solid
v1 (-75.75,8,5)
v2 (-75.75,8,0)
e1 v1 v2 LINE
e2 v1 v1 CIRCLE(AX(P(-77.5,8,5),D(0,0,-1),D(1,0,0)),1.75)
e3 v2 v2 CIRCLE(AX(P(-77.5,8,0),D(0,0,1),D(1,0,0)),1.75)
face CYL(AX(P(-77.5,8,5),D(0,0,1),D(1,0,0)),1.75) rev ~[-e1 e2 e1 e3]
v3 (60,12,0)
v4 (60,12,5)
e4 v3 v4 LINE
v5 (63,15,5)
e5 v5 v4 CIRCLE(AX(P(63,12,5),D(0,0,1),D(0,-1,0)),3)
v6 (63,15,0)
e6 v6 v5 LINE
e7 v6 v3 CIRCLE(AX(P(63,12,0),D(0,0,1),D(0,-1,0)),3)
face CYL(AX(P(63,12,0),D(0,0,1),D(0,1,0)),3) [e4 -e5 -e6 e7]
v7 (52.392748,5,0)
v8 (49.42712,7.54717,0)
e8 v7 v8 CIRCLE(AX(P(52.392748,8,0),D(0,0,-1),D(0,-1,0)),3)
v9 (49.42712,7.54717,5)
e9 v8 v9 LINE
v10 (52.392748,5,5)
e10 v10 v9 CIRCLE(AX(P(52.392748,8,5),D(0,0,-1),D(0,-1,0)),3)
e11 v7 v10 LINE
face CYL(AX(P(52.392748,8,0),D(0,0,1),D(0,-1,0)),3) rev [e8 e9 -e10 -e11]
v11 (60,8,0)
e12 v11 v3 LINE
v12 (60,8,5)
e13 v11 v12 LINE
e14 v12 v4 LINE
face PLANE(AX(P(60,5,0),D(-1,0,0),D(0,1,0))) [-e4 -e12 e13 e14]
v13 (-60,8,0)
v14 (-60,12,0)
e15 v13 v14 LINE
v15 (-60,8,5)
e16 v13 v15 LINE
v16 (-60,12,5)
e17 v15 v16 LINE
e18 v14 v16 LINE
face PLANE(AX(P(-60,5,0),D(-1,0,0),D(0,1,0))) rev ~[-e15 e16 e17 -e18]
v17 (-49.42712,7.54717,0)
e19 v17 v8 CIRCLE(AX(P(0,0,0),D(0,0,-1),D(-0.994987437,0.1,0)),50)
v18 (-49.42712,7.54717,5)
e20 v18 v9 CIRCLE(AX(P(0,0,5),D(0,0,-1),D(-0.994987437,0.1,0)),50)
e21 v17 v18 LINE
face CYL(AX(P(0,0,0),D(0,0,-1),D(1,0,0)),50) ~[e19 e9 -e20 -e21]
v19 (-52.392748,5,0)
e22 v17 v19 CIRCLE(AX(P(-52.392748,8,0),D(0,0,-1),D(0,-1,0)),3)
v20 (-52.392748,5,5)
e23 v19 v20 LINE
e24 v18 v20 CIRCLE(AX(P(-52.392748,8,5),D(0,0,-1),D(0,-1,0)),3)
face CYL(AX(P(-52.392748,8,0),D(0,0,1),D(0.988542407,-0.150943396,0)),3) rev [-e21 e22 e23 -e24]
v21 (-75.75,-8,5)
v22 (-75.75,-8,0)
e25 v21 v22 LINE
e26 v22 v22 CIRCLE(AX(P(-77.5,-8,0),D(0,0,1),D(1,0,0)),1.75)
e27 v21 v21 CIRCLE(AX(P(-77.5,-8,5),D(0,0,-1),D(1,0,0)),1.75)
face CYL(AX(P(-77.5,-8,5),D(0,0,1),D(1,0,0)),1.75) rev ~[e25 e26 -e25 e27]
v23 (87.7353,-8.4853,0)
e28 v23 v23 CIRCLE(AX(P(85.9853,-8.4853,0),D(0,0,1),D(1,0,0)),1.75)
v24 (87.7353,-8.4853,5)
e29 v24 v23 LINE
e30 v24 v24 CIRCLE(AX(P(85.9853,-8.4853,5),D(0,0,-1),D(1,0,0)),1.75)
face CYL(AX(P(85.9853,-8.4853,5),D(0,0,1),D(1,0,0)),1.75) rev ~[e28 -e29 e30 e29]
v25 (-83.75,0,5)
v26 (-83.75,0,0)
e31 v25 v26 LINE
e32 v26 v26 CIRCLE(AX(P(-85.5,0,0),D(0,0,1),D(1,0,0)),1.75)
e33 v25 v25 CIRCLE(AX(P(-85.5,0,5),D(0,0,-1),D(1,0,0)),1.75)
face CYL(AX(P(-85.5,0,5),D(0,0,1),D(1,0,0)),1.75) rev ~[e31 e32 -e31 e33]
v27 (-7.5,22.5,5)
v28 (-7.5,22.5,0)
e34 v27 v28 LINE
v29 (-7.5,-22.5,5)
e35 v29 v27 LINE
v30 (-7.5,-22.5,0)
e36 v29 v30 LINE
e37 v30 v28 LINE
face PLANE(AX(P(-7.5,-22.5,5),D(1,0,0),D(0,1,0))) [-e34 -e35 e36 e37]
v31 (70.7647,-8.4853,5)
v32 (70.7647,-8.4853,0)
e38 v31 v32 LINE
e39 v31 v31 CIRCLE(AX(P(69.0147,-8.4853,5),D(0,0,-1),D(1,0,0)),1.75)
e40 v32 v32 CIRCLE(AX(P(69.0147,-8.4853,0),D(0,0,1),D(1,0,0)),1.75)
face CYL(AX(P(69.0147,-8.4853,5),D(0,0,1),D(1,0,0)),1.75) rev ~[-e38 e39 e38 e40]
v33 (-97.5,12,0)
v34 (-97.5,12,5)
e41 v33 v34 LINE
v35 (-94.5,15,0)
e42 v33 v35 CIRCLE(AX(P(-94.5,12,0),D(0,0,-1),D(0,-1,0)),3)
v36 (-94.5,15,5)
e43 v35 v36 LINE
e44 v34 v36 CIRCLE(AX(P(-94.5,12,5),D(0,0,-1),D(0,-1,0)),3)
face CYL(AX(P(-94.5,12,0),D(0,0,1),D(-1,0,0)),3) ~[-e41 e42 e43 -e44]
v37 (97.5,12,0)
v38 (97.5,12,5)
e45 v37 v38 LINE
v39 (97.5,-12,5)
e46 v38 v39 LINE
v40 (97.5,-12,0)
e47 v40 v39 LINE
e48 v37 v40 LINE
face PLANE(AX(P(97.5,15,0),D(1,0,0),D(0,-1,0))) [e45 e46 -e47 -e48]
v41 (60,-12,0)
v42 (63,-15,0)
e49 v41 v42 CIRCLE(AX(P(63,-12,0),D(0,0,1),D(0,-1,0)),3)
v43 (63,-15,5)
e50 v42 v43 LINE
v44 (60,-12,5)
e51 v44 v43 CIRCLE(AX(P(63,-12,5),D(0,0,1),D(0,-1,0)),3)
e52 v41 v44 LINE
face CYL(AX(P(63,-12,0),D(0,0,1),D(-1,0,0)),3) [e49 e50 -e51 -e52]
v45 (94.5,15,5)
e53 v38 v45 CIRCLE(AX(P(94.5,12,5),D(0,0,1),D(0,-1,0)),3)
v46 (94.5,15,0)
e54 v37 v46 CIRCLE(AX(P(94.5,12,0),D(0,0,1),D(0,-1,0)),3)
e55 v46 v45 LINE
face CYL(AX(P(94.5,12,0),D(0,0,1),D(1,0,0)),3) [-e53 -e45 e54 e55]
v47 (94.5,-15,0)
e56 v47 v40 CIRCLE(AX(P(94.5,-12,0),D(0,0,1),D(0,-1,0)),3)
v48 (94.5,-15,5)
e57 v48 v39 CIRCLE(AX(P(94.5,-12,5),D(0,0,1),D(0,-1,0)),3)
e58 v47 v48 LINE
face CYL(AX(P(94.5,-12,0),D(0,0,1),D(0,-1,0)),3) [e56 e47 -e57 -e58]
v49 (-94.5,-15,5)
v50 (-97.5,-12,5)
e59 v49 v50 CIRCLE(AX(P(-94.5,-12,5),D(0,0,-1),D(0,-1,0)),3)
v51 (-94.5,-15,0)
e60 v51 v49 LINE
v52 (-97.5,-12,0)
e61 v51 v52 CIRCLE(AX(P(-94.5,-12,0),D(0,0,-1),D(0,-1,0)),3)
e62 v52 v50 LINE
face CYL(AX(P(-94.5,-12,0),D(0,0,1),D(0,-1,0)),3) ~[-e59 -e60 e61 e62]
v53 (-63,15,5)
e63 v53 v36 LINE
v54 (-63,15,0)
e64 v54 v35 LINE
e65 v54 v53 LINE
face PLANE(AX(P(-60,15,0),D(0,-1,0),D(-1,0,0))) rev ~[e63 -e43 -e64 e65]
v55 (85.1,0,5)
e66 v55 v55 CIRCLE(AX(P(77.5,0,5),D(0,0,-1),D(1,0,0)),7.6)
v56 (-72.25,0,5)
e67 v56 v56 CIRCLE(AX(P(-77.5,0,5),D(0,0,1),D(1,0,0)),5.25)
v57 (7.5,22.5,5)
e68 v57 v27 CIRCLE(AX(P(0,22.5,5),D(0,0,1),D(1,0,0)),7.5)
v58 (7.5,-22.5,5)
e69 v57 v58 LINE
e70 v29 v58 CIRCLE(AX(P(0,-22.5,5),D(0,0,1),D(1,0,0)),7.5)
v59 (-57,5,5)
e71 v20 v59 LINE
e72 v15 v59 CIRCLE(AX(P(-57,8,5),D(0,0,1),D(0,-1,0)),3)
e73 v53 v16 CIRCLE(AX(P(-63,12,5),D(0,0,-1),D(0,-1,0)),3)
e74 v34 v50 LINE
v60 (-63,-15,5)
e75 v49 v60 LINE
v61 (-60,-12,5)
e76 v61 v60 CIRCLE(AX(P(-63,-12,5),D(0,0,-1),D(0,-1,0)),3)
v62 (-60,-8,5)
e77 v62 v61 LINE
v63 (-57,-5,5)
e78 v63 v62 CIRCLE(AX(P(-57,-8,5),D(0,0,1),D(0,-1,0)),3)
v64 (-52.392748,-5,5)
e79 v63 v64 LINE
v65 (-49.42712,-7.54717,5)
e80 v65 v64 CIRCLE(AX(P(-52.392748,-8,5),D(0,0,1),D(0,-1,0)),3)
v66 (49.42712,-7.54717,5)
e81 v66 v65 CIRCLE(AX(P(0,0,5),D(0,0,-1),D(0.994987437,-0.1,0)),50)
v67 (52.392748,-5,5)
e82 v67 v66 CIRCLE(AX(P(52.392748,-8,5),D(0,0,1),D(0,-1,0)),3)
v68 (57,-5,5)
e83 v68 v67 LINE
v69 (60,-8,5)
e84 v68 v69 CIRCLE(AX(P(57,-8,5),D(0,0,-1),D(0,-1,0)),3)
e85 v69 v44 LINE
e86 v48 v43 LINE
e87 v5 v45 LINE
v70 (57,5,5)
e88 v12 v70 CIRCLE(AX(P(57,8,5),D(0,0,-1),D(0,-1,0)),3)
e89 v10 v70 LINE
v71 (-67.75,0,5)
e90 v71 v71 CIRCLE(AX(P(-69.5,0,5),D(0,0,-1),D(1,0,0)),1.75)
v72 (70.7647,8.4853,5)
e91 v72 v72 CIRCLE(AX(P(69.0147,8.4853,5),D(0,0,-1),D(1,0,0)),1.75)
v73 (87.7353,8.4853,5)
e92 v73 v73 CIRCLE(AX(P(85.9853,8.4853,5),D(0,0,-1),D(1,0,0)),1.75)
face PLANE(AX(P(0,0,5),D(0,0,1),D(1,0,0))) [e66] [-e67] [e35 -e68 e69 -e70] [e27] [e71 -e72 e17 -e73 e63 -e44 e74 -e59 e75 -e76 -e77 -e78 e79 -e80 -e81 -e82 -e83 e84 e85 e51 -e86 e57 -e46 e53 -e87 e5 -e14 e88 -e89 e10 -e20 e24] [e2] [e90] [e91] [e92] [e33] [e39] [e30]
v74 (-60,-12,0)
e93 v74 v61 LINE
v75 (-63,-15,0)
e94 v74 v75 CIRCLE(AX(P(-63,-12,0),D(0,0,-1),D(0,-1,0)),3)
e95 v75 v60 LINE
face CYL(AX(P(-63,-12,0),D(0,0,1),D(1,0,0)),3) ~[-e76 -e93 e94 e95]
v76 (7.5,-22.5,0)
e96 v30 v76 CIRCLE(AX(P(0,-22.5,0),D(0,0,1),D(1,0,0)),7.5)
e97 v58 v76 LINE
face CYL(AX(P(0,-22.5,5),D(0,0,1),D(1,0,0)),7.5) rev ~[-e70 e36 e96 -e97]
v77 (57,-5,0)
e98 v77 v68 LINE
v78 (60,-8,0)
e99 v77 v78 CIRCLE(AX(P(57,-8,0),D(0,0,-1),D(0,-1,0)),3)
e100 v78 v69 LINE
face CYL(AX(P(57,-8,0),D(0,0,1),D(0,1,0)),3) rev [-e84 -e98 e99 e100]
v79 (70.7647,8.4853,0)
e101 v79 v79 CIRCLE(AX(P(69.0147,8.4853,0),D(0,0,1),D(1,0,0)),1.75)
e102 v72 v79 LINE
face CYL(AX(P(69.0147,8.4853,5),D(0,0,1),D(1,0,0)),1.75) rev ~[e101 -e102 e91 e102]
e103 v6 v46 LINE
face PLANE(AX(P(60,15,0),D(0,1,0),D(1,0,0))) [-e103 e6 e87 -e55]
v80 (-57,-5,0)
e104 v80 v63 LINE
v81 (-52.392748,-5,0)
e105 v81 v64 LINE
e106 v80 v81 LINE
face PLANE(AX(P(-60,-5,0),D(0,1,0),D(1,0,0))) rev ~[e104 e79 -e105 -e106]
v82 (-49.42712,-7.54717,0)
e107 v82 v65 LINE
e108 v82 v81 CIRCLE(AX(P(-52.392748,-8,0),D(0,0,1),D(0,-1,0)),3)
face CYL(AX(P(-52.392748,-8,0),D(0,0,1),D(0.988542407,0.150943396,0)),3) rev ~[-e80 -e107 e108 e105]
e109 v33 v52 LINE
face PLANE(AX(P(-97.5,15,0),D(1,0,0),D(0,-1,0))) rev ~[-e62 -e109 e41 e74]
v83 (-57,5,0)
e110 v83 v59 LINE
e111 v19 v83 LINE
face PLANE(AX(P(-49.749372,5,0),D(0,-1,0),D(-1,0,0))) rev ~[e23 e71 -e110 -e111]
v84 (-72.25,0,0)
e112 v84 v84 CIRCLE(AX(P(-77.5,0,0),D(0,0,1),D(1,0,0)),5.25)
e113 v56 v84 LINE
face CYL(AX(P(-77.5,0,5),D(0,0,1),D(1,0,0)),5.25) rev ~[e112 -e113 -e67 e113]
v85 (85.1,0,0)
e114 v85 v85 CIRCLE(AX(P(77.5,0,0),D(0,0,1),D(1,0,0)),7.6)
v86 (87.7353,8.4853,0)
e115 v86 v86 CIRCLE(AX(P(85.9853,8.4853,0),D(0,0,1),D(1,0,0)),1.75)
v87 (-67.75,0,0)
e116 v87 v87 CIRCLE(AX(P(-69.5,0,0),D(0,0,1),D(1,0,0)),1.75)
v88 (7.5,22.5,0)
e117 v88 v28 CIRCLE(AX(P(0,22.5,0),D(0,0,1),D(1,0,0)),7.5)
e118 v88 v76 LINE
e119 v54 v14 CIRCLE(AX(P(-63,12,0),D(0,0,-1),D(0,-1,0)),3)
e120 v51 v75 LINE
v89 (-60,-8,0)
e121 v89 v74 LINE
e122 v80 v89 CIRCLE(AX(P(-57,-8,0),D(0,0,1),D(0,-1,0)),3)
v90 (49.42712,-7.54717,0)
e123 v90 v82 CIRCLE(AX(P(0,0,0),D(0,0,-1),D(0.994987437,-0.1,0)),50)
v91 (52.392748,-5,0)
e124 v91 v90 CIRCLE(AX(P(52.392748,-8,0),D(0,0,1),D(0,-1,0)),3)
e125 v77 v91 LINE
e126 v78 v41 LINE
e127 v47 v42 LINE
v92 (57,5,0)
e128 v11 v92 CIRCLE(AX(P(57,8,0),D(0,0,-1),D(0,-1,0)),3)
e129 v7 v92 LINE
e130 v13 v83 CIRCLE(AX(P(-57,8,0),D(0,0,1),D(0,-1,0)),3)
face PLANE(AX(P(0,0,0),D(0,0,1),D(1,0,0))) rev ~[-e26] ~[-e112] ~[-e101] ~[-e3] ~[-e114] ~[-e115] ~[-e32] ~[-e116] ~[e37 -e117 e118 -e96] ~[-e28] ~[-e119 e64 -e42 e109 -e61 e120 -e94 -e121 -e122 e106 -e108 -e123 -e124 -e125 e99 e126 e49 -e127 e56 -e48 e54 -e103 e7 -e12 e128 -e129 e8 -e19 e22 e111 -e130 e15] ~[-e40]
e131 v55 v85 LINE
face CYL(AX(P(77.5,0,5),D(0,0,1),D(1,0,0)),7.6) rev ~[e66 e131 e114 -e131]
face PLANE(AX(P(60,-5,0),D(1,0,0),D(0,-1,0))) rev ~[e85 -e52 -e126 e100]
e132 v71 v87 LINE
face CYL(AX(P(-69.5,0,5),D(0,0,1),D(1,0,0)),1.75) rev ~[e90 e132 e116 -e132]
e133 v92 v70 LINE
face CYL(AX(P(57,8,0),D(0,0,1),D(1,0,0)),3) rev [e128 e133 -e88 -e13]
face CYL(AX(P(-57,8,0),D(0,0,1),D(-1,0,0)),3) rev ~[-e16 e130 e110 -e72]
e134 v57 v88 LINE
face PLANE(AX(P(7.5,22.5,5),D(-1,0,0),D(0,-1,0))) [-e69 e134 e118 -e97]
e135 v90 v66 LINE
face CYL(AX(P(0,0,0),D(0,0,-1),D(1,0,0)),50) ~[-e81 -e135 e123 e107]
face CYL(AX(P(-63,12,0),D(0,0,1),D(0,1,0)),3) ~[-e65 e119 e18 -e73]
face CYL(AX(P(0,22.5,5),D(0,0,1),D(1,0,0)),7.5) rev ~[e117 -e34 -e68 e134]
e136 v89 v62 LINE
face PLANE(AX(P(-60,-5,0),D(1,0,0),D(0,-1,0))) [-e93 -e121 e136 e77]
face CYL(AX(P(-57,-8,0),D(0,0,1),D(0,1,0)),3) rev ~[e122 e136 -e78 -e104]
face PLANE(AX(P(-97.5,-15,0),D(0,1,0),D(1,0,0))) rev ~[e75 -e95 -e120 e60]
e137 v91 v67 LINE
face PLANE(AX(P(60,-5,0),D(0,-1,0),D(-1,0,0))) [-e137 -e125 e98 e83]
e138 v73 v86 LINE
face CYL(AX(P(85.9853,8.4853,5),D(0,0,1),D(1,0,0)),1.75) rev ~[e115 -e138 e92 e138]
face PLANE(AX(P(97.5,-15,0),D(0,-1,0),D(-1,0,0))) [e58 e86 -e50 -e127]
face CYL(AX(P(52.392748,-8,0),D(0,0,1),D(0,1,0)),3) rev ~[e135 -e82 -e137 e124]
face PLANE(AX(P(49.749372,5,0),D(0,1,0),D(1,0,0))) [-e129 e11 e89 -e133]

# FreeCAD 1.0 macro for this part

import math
import FreeCAD as App
import Part
import Sketcher
from FreeCAD import Vector


def edges_at(feature, points):
    """Names of the edges that pass closest to the given points."""
    edges = feature.Shape.Edges
    near = lambda p: min(range(len(edges)), key=lambda i: edges[i].distToShape(Part.Vertex(*p))[0])
    return sorted({f"Edge{near(p) + 1}" for p in points})

doc = App.newDocument("Part")
body = doc.addObject("PartDesign::Body", "Body")

sketch1 = doc.addObject("Sketcher::SketchObject", "Sketch")
body.addObject(sketch1)
sketch1.AttachmentSupport = (doc.XY_Plane, [""])
sketch1.MapMode = "FlatFace"
sketch1.addGeometry([
    Part.LineSegment(Vector(50, -5, 0), Vector(60, -5, 0)),
    Part.LineSegment(Vector(60, -5, 0), Vector(60, -15, 0)),
    Part.LineSegment(Vector(60, -15, 0), Vector(98, -15, 0)),
    Part.LineSegment(Vector(98, -15, 0), Vector(98, 15, 0)),
    Part.LineSegment(Vector(98, 15, 0), Vector(60, 15, 0)),
    Part.LineSegment(Vector(60, 15, 0), Vector(60, 5, 0)),
    Part.LineSegment(Vector(60, 5, 0), Vector(50, 5, 0)),
    Part.ArcOfCircle(Part.Circle(Vector(0, 0, 0), Vector(0, 0, 1), 50), math.radians(6), math.radians(174)),
    Part.LineSegment(Vector(-50, 5, 0), Vector(-60, 5, 0)),
    Part.LineSegment(Vector(-60, 5, 0), Vector(-60, 15, 0)),
    Part.LineSegment(Vector(-60, 15, 0), Vector(-98, 15, 0)),
    Part.LineSegment(Vector(-98, 15, 0), Vector(-98, -15, 0)),
    Part.LineSegment(Vector(-98, -15, 0), Vector(-60, -15, 0)),
    Part.LineSegment(Vector(-60, -15, 0), Vector(-60, -5, 0)),
    Part.LineSegment(Vector(-60, -5, 0), Vector(-50, -5, 0)),
    Part.ArcOfCircle(Part.Circle(Vector(0, 0, 0), Vector(0, 0, 1), 50), math.radians(-174), math.radians(-6)),
], False)
sketch1.addConstraint([
    Sketcher.Constraint("Coincident", 0, 2, 1, 1),
    Sketcher.Constraint("Coincident", 1, 2, 2, 1),
    Sketcher.Constraint("Coincident", 2, 2, 3, 1),
    Sketcher.Constraint("Coincident", 3, 2, 4, 1),
    Sketcher.Constraint("Coincident", 4, 2, 5, 1),
    Sketcher.Constraint("Coincident", 5, 2, 6, 1),
    Sketcher.Constraint("Coincident", 6, 2, 7, 1),
    Sketcher.Constraint("Coincident", 7, 2, 8, 1),
    Sketcher.Constraint("Coincident", 8, 2, 9, 1),
    Sketcher.Constraint("Coincident", 9, 2, 10, 1),
    Sketcher.Constraint("Coincident", 10, 2, 11, 1),
    Sketcher.Constraint("Coincident", 11, 2, 12, 1),
    Sketcher.Constraint("Coincident", 12, 2, 13, 1),
    Sketcher.Constraint("Coincident", 13, 2, 14, 1),
    Sketcher.Constraint("Coincident", 14, 2, 15, 1),
    Sketcher.Constraint("Coincident", 15, 2, 0, 1),
    Sketcher.Constraint("Horizontal", 0),
    Sketcher.Constraint("Vertical", 1),
    Sketcher.Constraint("Horizontal", 2),
    Sketcher.Constraint("Vertical", 3),
    Sketcher.Constraint("Horizontal", 4),
    Sketcher.Constraint("Vertical", 5),
    Sketcher.Constraint("Horizontal", 6),
    Sketcher.Constraint("Horizontal", 8),
    Sketcher.Constraint("Vertical", 9),
    Sketcher.Constraint("Horizontal", 10),
    Sketcher.Constraint("Vertical", 11),
    Sketcher.Constraint("Horizontal", 12),
    Sketcher.Constraint("Vertical", 13),
    Sketcher.Constraint("Horizontal", 14),
    Sketcher.Constraint("Coincident", 7, 3, -1, 1),
    Sketcher.Constraint("Coincident", 15, 3, -1, 1),
    Sketcher.Constraint("Equal", 7, 15),
    Sketcher.Constraint("Symmetric", 0, 2, 8, 2, -1, 1),
    Sketcher.Constraint("Symmetric", 2, 2, 10, 2, -1, 1),
    Sketcher.Constraint("Symmetric", 4, 2, 12, 2, -1, 1),
    Sketcher.Constraint("Symmetric", 5, 2, 8, 2, -2),
    Sketcher.Constraint("Horizontal", 4, 2, 9, 2),
    Sketcher.Constraint("Horizontal", 0, 2, 13, 2),
    Sketcher.Constraint("Radius", 7, 50.0),
    Sketcher.Constraint("DistanceY", 1, 2, 1, 1, 10.0),
    Sketcher.Constraint("DistanceY", 3, 1, 3, 2, 30.0),
    Sketcher.Constraint("DistanceX", 2, 1, 2, 2, 37.5),
    Sketcher.Constraint("DistanceX", -1, 1, 0, 2, 60.0),
])
pad1 = doc.addObject("PartDesign::Pad", "Pad")
body.addObject(pad1)
pad1.Profile = sketch1
pad1.Length = 5

sketch2 = doc.addObject("Sketcher::SketchObject", "Sketch001")
body.addObject(sketch2)
sketch2.AttachmentSupport = (doc.XY_Plane, [""])
sketch2.MapMode = "FlatFace"
sketch2.AttachmentOffset = App.Placement(Vector(0, 0, 5), App.Rotation())
sketch2.addGeometry([
    Part.Circle(Vector(-77.5, 0, 0), Vector(0, 0, 1), 5.2),
    Part.Circle(Vector(-69.5, 0, 0), Vector(0, 0, 1), 1.8),
    Part.Circle(Vector(-77.5, 8, 0), Vector(0, 0, 1), 1.8),
    Part.Circle(Vector(-77.5, -8, 0), Vector(0, 0, 1), 1.8),
    Part.Circle(Vector(-85.5, 0, 0), Vector(0, 0, 1), 1.8),
    Part.Circle(Vector(86, 8.5, 0), Vector(0, 0, 1), 1.8),
    Part.Circle(Vector(86, -8.5, 0), Vector(0, 0, 1), 1.8),
    Part.Circle(Vector(77.5, 0, 0), Vector(0, 0, 1), 7.6),
    Part.Circle(Vector(69, -8.5, 0), Vector(0, 0, 1), 1.8),
    Part.Circle(Vector(69, 8.5, 0), Vector(0, 0, 1), 1.8),
], False)
sketch2.addConstraint([
    Sketcher.Constraint("Equal", 1, 2),
    Sketcher.Constraint("Equal", 2, 3),
    Sketcher.Constraint("Equal", 3, 4),
    Sketcher.Constraint("Equal", 4, 5),
    Sketcher.Constraint("Equal", 5, 6),
    Sketcher.Constraint("Equal", 6, 8),
    Sketcher.Constraint("Equal", 8, 9),
    Sketcher.Constraint("Symmetric", 0, 3, 7, 3, -1, 1),
    Sketcher.Constraint("Symmetric", 2, 3, 3, 3, -1),
    Sketcher.Constraint("Symmetric", 5, 3, 6, 3, -1),
    Sketcher.Constraint("Symmetric", 8, 3, 9, 3, -1),
    Sketcher.Constraint("PointOnObject", 0, 3, -1),
    Sketcher.Constraint("PointOnObject", 1, 3, -1),
    Sketcher.Constraint("PointOnObject", 4, 3, -1),
    Sketcher.Constraint("Horizontal", 6, 3, 8, 3),
    Sketcher.Constraint("Vertical", 0, 3, 2, 3),
    Sketcher.Constraint("Diameter", 0, 10.5),
    Sketcher.Constraint("Diameter", 1, 3.5),
    Sketcher.Constraint("Diameter", 7, 15.2),
    Sketcher.Constraint("DistanceY", 3, 3, 2, 3, 16.0),
    Sketcher.Constraint("DistanceX", 4, 3, 1, 3, 16.0),
    Sketcher.Constraint("DistanceX", 0, 3, -1, 1, 77.5),
    Sketcher.Constraint("DistanceX", 0, 3, 1, 3, 8.0),
    Sketcher.Constraint("DistanceX", -1, 1, 5, 3, 85.9853),
    Sketcher.Constraint("DistanceY", -1, 1, 5, 3, 8.4853),
    Sketcher.Constraint("DistanceX", -1, 1, 8, 3, 69.0147),
])
pocket1 = doc.addObject("PartDesign::Pocket", "Pocket")
body.addObject(pocket1)
pocket1.Profile = sketch2
pocket1.Length = 7
doc.recompute()

fillet = doc.addObject("PartDesign::Fillet", "Fillet")
body.addObject(fillet)
fillet.Base = (pocket1, edges_at(pocket1, [
    (-60, 5, 2.5),
    (-60, 15, 2.5),
    (-49.749, 5, 2.5),
    (-60, -5, 2.5),
    (-60, -15, 2.5),
    (-49.749, -5, 2.5),
    (-97.5, -15, 2.5),
    (-97.5, 15, 2.5),
    (97.5, 15, 2.5),
    (97.5, -15, 2.5),
    (60, -15, 2.5),
    (60, 15, 2.5),
    (60, -5, 2.5),
    (60, 5, 2.5),
    (49.749, 5, 2.5),
    (49.749, -5, 2.5),
]))
fillet.Radius = 3

sketch3 = doc.addObject("Sketcher::SketchObject", "Sketch002")
body.addObject(sketch3)
sketch3.AttachmentSupport = (doc.XY_Plane, [""])
sketch3.MapMode = "FlatFace"
sketch3.AttachmentOffset = App.Placement(Vector(0, 0, 5), App.Rotation())
sketch3.addGeometry([
    Part.ArcOfCircle(Part.Circle(Vector(0, 22, 0), Vector(0, 0, 1), 8), math.radians(0), math.radians(180)),
    Part.LineSegment(Vector(-8, 22, 0), Vector(-8, -22, 0)),
    Part.ArcOfCircle(Part.Circle(Vector(0, -22, 0), Vector(0, 0, 1), 8), math.radians(180), math.radians(360)),
    Part.LineSegment(Vector(8, -22, 0), Vector(8, 22, 0)),
], False)
sketch3.addConstraint([
    Sketcher.Constraint("Tangent", 0, 2, 1, 1),
    Sketcher.Constraint("Tangent", 1, 2, 2, 1),
    Sketcher.Constraint("Tangent", 2, 2, 3, 1),
    Sketcher.Constraint("Tangent", 3, 2, 0, 1),
    Sketcher.Constraint("Vertical", 1),
    Sketcher.Constraint("Vertical", 3),
    Sketcher.Constraint("Symmetric", 0, 3, 2, 3, -1, 1),
    Sketcher.Constraint("Radius", 0, 7.5),
    Sketcher.Constraint("DistanceY", 1, 2, 1, 1, 45.0),
])
pocket2 = doc.addObject("PartDesign::Pocket", "Pocket001")
body.addObject(pocket2)
pocket2.Profile = sketch3
pocket2.Length = 10

doc.recompute()
